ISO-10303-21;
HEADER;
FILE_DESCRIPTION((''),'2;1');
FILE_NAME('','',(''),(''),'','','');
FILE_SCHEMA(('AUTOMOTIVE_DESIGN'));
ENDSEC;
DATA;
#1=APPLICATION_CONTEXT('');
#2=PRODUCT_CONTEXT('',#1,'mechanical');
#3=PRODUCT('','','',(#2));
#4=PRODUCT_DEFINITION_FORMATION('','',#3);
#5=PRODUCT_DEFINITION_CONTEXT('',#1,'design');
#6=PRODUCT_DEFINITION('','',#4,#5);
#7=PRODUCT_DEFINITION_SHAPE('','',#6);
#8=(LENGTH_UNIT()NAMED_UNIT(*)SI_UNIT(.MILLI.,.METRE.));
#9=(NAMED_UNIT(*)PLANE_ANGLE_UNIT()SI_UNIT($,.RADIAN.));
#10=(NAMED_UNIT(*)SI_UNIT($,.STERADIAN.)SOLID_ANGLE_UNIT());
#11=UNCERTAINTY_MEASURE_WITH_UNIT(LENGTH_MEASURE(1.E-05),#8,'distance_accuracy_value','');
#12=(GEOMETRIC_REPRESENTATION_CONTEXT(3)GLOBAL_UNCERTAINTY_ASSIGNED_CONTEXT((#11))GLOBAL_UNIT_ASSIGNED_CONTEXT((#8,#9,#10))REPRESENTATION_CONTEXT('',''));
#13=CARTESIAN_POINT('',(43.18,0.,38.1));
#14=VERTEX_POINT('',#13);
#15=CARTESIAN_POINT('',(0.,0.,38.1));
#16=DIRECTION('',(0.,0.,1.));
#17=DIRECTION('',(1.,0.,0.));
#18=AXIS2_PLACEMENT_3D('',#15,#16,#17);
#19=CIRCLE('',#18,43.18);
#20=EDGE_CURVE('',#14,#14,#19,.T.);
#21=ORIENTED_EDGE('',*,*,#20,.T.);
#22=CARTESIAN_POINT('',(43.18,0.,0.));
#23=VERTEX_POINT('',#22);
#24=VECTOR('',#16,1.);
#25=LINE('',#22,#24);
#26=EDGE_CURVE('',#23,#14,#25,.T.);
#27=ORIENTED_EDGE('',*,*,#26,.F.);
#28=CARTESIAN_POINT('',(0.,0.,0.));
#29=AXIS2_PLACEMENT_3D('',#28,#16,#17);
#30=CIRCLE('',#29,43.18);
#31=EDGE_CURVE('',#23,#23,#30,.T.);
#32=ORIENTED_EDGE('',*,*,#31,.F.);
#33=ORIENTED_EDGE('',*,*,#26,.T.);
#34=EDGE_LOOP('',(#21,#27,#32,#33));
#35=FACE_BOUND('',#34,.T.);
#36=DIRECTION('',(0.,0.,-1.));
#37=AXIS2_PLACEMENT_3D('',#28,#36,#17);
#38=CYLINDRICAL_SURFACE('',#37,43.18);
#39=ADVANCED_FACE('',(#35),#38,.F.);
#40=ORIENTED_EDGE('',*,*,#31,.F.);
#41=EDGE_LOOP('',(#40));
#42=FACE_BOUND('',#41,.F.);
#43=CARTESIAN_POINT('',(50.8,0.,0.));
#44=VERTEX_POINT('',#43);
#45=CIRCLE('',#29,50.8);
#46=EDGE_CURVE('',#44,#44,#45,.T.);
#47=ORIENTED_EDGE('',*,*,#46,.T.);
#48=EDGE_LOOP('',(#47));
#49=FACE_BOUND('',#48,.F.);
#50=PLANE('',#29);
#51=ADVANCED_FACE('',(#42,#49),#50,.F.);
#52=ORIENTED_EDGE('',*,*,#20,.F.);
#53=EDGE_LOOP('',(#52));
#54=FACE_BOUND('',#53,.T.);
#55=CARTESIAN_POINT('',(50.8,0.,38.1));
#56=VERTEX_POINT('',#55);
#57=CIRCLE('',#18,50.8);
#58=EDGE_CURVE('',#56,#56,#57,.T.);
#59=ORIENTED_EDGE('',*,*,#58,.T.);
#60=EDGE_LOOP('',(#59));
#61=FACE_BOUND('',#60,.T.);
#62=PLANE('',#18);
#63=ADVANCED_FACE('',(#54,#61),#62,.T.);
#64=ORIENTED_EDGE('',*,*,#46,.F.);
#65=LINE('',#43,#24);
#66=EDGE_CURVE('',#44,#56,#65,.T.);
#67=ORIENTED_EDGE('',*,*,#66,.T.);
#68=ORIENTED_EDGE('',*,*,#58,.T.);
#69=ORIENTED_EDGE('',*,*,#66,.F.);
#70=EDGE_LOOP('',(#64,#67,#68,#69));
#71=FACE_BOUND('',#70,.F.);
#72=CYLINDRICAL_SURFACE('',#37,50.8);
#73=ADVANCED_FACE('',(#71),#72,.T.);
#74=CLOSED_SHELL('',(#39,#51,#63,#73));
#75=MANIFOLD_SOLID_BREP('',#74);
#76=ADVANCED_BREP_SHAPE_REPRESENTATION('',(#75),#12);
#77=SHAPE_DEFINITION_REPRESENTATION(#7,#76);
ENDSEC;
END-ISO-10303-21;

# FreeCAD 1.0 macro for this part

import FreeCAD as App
import Part
import Sketcher

V = App.Vector
Q = App.Units.Quantity

doc = App.newDocument("Part")
body = doc.addObject("PartDesign::Body", "Body")

sketch1 = body.newObject("Sketcher::SketchObject", "Sketch")
sketch1.AttachmentSupport = (doc.getObject("XY_Plane"), [""])
sketch1.MapMode = "FlatFace"
sketch1.addGeometry([
    Part.Circle(V(0, 0, 0), V(0, 0, 1), 51),
    Part.Circle(V(0, 0, 0), V(0, 0, 1), 43),
], False)
sketch1.addConstraint([
    Sketcher.Constraint("Coincident", 0, 3, -1, 1),
    Sketcher.Constraint("Coincident", 1, 3, -1, 1),
    Sketcher.Constraint("Diameter", 0, Q("4 in")),
    Sketcher.Constraint("Diameter", 1, Q("3.4 in")),
])
pad1 = body.newObject("PartDesign::Pad", "Pad")
pad1.Profile = sketch1
pad1.Length = Q("1.5 in")

doc.recompute()
